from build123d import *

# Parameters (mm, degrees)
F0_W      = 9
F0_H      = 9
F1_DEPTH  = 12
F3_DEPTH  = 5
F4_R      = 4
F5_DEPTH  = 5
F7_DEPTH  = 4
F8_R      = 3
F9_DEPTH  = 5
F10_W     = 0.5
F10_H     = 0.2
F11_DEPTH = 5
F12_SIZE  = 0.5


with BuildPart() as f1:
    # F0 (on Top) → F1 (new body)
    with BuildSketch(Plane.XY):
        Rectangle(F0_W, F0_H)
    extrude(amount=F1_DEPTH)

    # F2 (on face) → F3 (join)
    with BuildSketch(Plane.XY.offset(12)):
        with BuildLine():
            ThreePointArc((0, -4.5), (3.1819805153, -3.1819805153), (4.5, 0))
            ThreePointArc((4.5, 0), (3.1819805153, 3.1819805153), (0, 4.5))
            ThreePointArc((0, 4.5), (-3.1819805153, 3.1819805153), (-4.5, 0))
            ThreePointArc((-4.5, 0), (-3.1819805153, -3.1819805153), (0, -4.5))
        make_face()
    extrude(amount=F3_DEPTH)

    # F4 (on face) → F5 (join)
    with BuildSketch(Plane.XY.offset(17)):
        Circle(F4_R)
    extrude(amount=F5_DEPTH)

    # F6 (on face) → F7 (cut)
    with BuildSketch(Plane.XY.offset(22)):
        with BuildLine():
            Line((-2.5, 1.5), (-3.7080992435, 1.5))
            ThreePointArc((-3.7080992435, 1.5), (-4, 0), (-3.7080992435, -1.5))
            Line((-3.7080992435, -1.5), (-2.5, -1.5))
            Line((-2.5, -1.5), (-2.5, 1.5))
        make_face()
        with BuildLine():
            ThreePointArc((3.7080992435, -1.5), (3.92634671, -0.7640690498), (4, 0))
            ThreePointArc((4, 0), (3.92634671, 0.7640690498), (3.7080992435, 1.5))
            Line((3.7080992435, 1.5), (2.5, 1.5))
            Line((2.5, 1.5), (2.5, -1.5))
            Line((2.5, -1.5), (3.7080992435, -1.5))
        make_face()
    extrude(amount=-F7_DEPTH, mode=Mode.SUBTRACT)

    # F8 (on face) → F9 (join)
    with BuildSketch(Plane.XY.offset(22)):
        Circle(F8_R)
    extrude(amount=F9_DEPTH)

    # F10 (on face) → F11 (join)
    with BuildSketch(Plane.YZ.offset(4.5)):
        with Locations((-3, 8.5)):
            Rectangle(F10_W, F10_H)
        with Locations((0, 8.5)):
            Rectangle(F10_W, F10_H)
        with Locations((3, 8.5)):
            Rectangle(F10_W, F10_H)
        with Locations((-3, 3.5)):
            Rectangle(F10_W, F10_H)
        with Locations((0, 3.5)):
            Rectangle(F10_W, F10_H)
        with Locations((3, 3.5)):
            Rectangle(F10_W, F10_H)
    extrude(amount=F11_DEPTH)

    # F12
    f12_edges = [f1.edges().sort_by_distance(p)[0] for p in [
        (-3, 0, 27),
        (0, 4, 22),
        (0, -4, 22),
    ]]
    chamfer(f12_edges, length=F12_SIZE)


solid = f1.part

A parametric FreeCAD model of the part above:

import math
import FreeCAD as App
import Part
import Sketcher
from FreeCAD import Vector
Q = App.Units.Quantity


def edges_at(feature, points):
    """Names of the edges that pass closest to the given points."""
    edges = feature.Shape.Edges
    near = lambda p: min(range(len(edges)), key=lambda i: edges[i].distToShape(Part.Vertex(*p))[0])
    return sorted({f"Edge{near(p) + 1}" for p in points})

doc = App.newDocument("Part")
body = doc.addObject("PartDesign::Body", "Body")

# Sketch on XY plane
sketch1 = body.newObject("Sketcher::SketchObject", "Sketch")
sketch1.AttachmentSupport = (doc.getObject("XY_Plane"), [""])
sketch1.MapMode = "FlatFace"
sketch1.addGeometry([
    Part.LineSegment(Vector(-4.5, 4.5, 0), Vector(-4.5, -4.5, 0)),
    Part.LineSegment(Vector(-4.5, -4.5, 0), Vector(4.5, -4.5, 0)),
    Part.LineSegment(Vector(4.5, -4.5, 0), Vector(4.5, 4.5, 0)),
    Part.LineSegment(Vector(4.5, 4.5, 0), Vector(-4.5, 4.5, 0)),
], False)
sketch1.addConstraint([
    Sketcher.Constraint("Coincident", 0, 2, 1, 1),
    Sketcher.Constraint("Coincident", 1, 2, 2, 1),
    Sketcher.Constraint("Coincident", 2, 2, 3, 1),
    Sketcher.Constraint("Coincident", 3, 2, 0, 1),
    Sketcher.Constraint("Vertical", 0),
    Sketcher.Constraint("Horizontal", 1),
    Sketcher.Constraint("Vertical", 2),
    Sketcher.Constraint("Horizontal", 3),
    Sketcher.Constraint("Symmetric", 0, 2, 2, 2, -1, 1),
    Sketcher.Constraint("Equal", 3, 0),
    Sketcher.Constraint("DistanceX", 1, 1, 1, 2, Q("9 mm")),
])
pad1 = body.newObject("PartDesign::Pad", "Pad")
pad1.Profile = sketch1
pad1.Length = 12

# Sketch on XY plane
sketch2 = body.newObject("Sketcher::SketchObject", "Sketch001")
sketch2.AttachmentSupport = (doc.getObject("XY_Plane"), [""])
sketch2.MapMode = "FlatFace"
sketch2.AttachmentOffset = App.Placement(Vector(0, 0, 12), App.Rotation())
sketch2.addGeometry([
    Part.ArcOfCircle(Part.Circle(Vector(0, 0, 0), Vector(0, 0, 1), 4.5), math.radians(-90), math.radians(0)),
    Part.ArcOfCircle(Part.Circle(Vector(0, 0, 0), Vector(0, 0, 1), 4.5), math.radians(0), math.radians(90)),
    Part.ArcOfCircle(Part.Circle(Vector(0, 0, 0), Vector(0, 0, 1), 4.5), math.radians(90), math.radians(180)),
    Part.ArcOfCircle(Part.Circle(Vector(0, 0, 0), Vector(0, 0, 1), 4.5), math.radians(180), math.radians(270)),
], False)
sketch2.addConstraint([
    Sketcher.Constraint("Tangent", 0, 2, 1, 1),
    Sketcher.Constraint("Tangent", 1, 2, 2, 1),
    Sketcher.Constraint("Tangent", 2, 2, 3, 1),
    Sketcher.Constraint("Tangent", 3, 2, 0, 1),
    Sketcher.Constraint("Coincident", 0, 3, -1, 1),
    Sketcher.Constraint("Equal", 0, 1),
    Sketcher.Constraint("PointOnObject", 0, 2, -1),
    Sketcher.Constraint("PointOnObject", 1, 2, -2),
    Sketcher.Constraint("PointOnObject", 2, 2, -1),
    Sketcher.Constraint("PointOnObject", 3, 2, -2),
    Sketcher.Constraint("Radius", 0, Q("4.5 mm")),
])
pad2 = body.newObject("PartDesign::Pad", "Pad001")
pad2.Profile = sketch2
pad2.Length = 5

# Sketch on XY plane
sketch3 = body.newObject("Sketcher::SketchObject", "Sketch002")
sketch3.AttachmentSupport = (doc.getObject("XY_Plane"), [""])
sketch3.MapMode = "FlatFace"
sketch3.AttachmentOffset = App.Placement(Vector(0, 0, 17), App.Rotation())
sketch3.addGeometry(Part.Circle(Vector(0, 0, 0), Vector(0, 0, 1), 4), False)
sketch3.addConstraint([
    Sketcher.Constraint("Coincident", 0, 3, -1, 1),
    Sketcher.Constraint("Diameter", 0, Q("8 mm")),
])
pad3 = body.newObject("PartDesign::Pad", "Pad002")
pad3.Profile = sketch3
pad3.Length = 5

# Sketch on XY plane
sketch4 = body.newObject("Sketcher::SketchObject", "Sketch003")
sketch4.AttachmentSupport = (doc.getObject("XY_Plane"), [""])
sketch4.MapMode = "FlatFace"
sketch4.AttachmentOffset = App.Placement(Vector(0, 0, 22), App.Rotation())
sketch4.addGeometry([
    Part.LineSegment(Vector(-2.5, 1.5, 0), Vector(-3.708099, 1.5, 0)),  # 0
    Part.ArcOfCircle(Part.Circle(Vector(0, 0, 0), Vector(0, 0, 1), 4), math.radians(157.975687), math.radians(202.024313)),  # 1
    Part.LineSegment(Vector(-3.708099, -1.5, 0), Vector(-2.5, -1.5, 0)),  # 2
    Part.LineSegment(Vector(-2.5, -1.5, 0), Vector(-2.5, 1.5, 0)),  # 3
    Part.ArcOfCircle(Part.Circle(Vector(0, 0, 0), Vector(0, 0, 1), 4), math.radians(-22.024313), math.radians(0)),  # 4
    Part.ArcOfCircle(Part.Circle(Vector(0, 0, 0), Vector(0, 0, 1), 4), math.radians(0), math.radians(22.024313)),  # 5
    Part.LineSegment(Vector(3.708099, 1.5, 0), Vector(2.5, 1.5, 0)),  # 6
    Part.LineSegment(Vector(2.5, 1.5, 0), Vector(2.5, -1.5, 0)),  # 7
    Part.LineSegment(Vector(2.5, -1.5, 0), Vector(3.708099, -1.5, 0)),  # 8
], False)
sketch4.addConstraint([
    Sketcher.Constraint("Coincident", 0, 2, 1, 1),
    Sketcher.Constraint("Coincident", 1, 2, 2, 1),
    Sketcher.Constraint("Coincident", 2, 2, 3, 1),
    Sketcher.Constraint("Coincident", 3, 2, 0, 1),
    Sketcher.Constraint("Tangent", 4, 2, 5, 1),
    Sketcher.Constraint("Coincident", 5, 2, 6, 1),
    Sketcher.Constraint("Coincident", 6, 2, 7, 1),
    Sketcher.Constraint("Coincident", 7, 2, 8, 1),
    Sketcher.Constraint("Coincident", 8, 2, 4, 1),
    Sketcher.Constraint("Horizontal", 0),
    Sketcher.Constraint("Horizontal", 2),
    Sketcher.Constraint("Vertical", 3),
    Sketcher.Constraint("Horizontal", 6),
    Sketcher.Constraint("Vertical", 7),
    Sketcher.Constraint("Horizontal", 8),
    Sketcher.Constraint("Coincident", 1, 3, -1, 1),
    Sketcher.Constraint("Coincident", 4, 3, -1, 1),
    Sketcher.Constraint("Equal", 1, 4),
    Sketcher.Constraint("Equal", 4, 5),
    Sketcher.Constraint("Symmetric", 2, 2, 6, 2, -1, 1),
    Sketcher.Constraint("PointOnObject", 4, 2, -1),
    Sketcher.Constraint("Horizontal", 3, 2, 5, 2),
    Sketcher.Constraint("Horizontal", 2, 2, 7, 2),
    Sketcher.Constraint("Radius", 1, Q("4 mm")),
    Sketcher.Constraint("DistanceY", 3, 1, 3, 2, Q("3 mm")),
    Sketcher.Constraint("DistanceX", 2, 2, -1, 1, Q("2.5 mm")),
])
pocket1 = body.newObject("PartDesign::Pocket", "Pocket")
pocket1.Profile = sketch4
pocket1.Length = 4

# Sketch on XY plane
sketch5 = body.newObject("Sketcher::SketchObject", "Sketch004")
sketch5.AttachmentSupport = (doc.getObject("XY_Plane"), [""])
sketch5.MapMode = "FlatFace"
sketch5.AttachmentOffset = App.Placement(Vector(0, 0, 22), App.Rotation())
sketch5.addGeometry(Part.Circle(Vector(0, 0, 0), Vector(0, 0, 1), 3), False)
sketch5.addConstraint([
    Sketcher.Constraint("Coincident", 0, 3, -1, 1),
    Sketcher.Constraint("Diameter", 0, Q("6 mm")),
])
pad4 = body.newObject("PartDesign::Pad", "Pad003")
pad4.Profile = sketch5
pad4.Length = 5

# Sketch on YZ plane
sketch6 = body.newObject("Sketcher::SketchObject", "Sketch005")
sketch6.AttachmentSupport = (doc.getObject("YZ_Plane"), [""])
sketch6.MapMode = "FlatFace"
sketch6.AttachmentOffset = App.Placement(Vector(0, 0, 4.5), App.Rotation())
sketch6.addGeometry([
    Part.LineSegment(Vector(-3.25, 8.6, 0), Vector(-3.25, 8.4, 0)),  # 0
    Part.LineSegment(Vector(-3.25, 8.4, 0), Vector(-2.75, 8.4, 0)),  # 1
    Part.LineSegment(Vector(-2.75, 8.4, 0), Vector(-2.75, 8.6, 0)),  # 2
    Part.LineSegment(Vector(-2.75, 8.6, 0), Vector(-3.25, 8.6, 0)),  # 3
    Part.LineSegment(Vector(-0.25, 8.6, 0), Vector(-0.25, 8.4, 0)),  # 4
    Part.LineSegment(Vector(-0.25, 8.4, 0), Vector(0.25, 8.4, 0)),  # 5
    Part.LineSegment(Vector(0.25, 8.4, 0), Vector(0.25, 8.6, 0)),  # 6
    Part.LineSegment(Vector(0.25, 8.6, 0), Vector(-0.25, 8.6, 0)),  # 7
    Part.LineSegment(Vector(2.75, 8.6, 0), Vector(2.75, 8.4, 0)),  # 8
    Part.LineSegment(Vector(2.75, 8.4, 0), Vector(3.25, 8.4, 0)),  # 9
    Part.LineSegment(Vector(3.25, 8.4, 0), Vector(3.25, 8.6, 0)),  # 10
    Part.LineSegment(Vector(3.25, 8.6, 0), Vector(2.75, 8.6, 0)),  # 11
    Part.LineSegment(Vector(-3.25, 3.6, 0), Vector(-3.25, 3.4, 0)),  # 12
    Part.LineSegment(Vector(-3.25, 3.4, 0), Vector(-2.75, 3.4, 0)),  # 13
    Part.LineSegment(Vector(-2.75, 3.4, 0), Vector(-2.75, 3.6, 0)),  # 14
    Part.LineSegment(Vector(-2.75, 3.6, 0), Vector(-3.25, 3.6, 0)),  # 15
    Part.LineSegment(Vector(-0.25, 3.6, 0), Vector(-0.25, 3.4, 0)),  # 16
    Part.LineSegment(Vector(-0.25, 3.4, 0), Vector(0.25, 3.4, 0)),  # 17
    Part.LineSegment(Vector(0.25, 3.4, 0), Vector(0.25, 3.6, 0)),  # 18
    Part.LineSegment(Vector(0.25, 3.6, 0), Vector(-0.25, 3.6, 0)),  # 19
    Part.LineSegment(Vector(2.75, 3.6, 0), Vector(2.75, 3.4, 0)),  # 20
    Part.LineSegment(Vector(2.75, 3.4, 0), Vector(3.25, 3.4, 0)),  # 21
    Part.LineSegment(Vector(3.25, 3.4, 0), Vector(3.25, 3.6, 0)),  # 22
    Part.LineSegment(Vector(3.25, 3.6, 0), Vector(2.75, 3.6, 0)),  # 23
], False)
sketch6.addConstraint([
    Sketcher.Constraint("Coincident", 0, 2, 1, 1),
    Sketcher.Constraint("Coincident", 1, 2, 2, 1),
    Sketcher.Constraint("Coincident", 2, 2, 3, 1),
    Sketcher.Constraint("Coincident", 3, 2, 0, 1),
    Sketcher.Constraint("Coincident", 4, 2, 5, 1),
    Sketcher.Constraint("Coincident", 5, 2, 6, 1),
    Sketcher.Constraint("Coincident", 6, 2, 7, 1),
    Sketcher.Constraint("Coincident", 7, 2, 4, 1),
    Sketcher.Constraint("Coincident", 8, 2, 9, 1),
    Sketcher.Constraint("Coincident", 9, 2, 10, 1),
    Sketcher.Constraint("Coincident", 10, 2, 11, 1),
    Sketcher.Constraint("Coincident", 11, 2, 8, 1),
    Sketcher.Constraint("Coincident", 12, 2, 13, 1),
    Sketcher.Constraint("Coincident", 13, 2, 14, 1),
    Sketcher.Constraint("Coincident", 14, 2, 15, 1),
    Sketcher.Constraint("Coincident", 15, 2, 12, 1),
    Sketcher.Constraint("Coincident", 16, 2, 17, 1),
    Sketcher.Constraint("Coincident", 17, 2, 18, 1),
    Sketcher.Constraint("Coincident", 18, 2, 19, 1),
    Sketcher.Constraint("Coincident", 19, 2, 16, 1),
    Sketcher.Constraint("Coincident", 20, 2, 21, 1),
    Sketcher.Constraint("Coincident", 21, 2, 22, 1),
    Sketcher.Constraint("Coincident", 22, 2, 23, 1),
    Sketcher.Constraint("Coincident", 23, 2, 20, 1),
    Sketcher.Constraint("Vertical", 0),
    Sketcher.Constraint("Horizontal", 1),
    Sketcher.Constraint("Vertical", 2),
    Sketcher.Constraint("Horizontal", 3),
    Sketcher.Constraint("Vertical", 4),
    Sketcher.Constraint("Horizontal", 5),
    Sketcher.Constraint("Vertical", 6),
    Sketcher.Constraint("Horizontal", 7),
    Sketcher.Constraint("Vertical", 8),
    Sketcher.Constraint("Horizontal", 9),
    Sketcher.Constraint("Vertical", 10),
    Sketcher.Constraint("Horizontal", 11),
    Sketcher.Constraint("Vertical", 12),
    Sketcher.Constraint("Horizontal", 13),
    Sketcher.Constraint("Vertical", 14),
    Sketcher.Constraint("Horizontal", 15),
    Sketcher.Constraint("Vertical", 16),
    Sketcher.Constraint("Horizontal", 17),
    Sketcher.Constraint("Vertical", 18),
    Sketcher.Constraint("Horizontal", 19),
    Sketcher.Constraint("Vertical", 20),
    Sketcher.Constraint("Horizontal", 21),
    Sketcher.Constraint("Vertical", 22),
    Sketcher.Constraint("Horizontal", 23),
    Sketcher.Constraint("Symmetric", 1, 2, 8, 2, -2),
    Sketcher.Constraint("Symmetric", 3, 2, 10, 2, -2),
    Sketcher.Constraint("Symmetric", 13, 2, 20, 2, -2),
    Sketcher.Constraint("Symmetric", 15, 2, 22, 2, -2),
    Sketcher.Constraint("Horizontal", 1, 2, 4, 2),
    Sketcher.Constraint("Horizontal", 3, 2, 6, 2),
    Sketcher.Constraint("Horizontal", 13, 2, 16, 2),
    Sketcher.Constraint("Horizontal", 15, 2, 18, 2),
    Sketcher.Constraint("Vertical", 3, 2, 12, 2),
    Sketcher.Constraint("Vertical", 2, 2, 13, 2),
    Sketcher.Constraint("Vertical", 7, 2, 16, 2),
    Sketcher.Constraint("Vertical", 6, 2, 17, 2),
    Sketcher.Constraint("Equal", 3, 5),
    Sketcher.Constraint("Equal", 10, 12),
    Sketcher.Constraint("DistanceX", 1, 1, 1, 2, Q("0.5 mm")),
    Sketcher.Constraint("DistanceY", 0, 2, 0, 1, Q("0.2 mm")),
    Sketcher.Constraint("DistanceX", 0, 2, 4, 2, Q("3 mm")),
    Sketcher.Constraint("DistanceX", 4, 2, 8, 2, Q("3 mm")),
    Sketcher.Constraint("DistanceY", 12, 2, 0, 2, Q("5 mm")),
    Sketcher.Constraint("DistanceY", -1, 1, 0, 2, Q("8.4 mm")),
])
pad5 = body.newObject("PartDesign::Pad", "Pad004")
pad5.Profile = sketch6
pad5.Length = 5
doc.recompute()

chamfer = body.newObject("PartDesign::Chamfer", "Chamfer")
chamfer.Base = (pad5, edges_at(pad5, [(-3, 0, 27), (0, 4, 22), (0, -4, 22)]))
chamfer.Size = 0.5

doc.recompute()
